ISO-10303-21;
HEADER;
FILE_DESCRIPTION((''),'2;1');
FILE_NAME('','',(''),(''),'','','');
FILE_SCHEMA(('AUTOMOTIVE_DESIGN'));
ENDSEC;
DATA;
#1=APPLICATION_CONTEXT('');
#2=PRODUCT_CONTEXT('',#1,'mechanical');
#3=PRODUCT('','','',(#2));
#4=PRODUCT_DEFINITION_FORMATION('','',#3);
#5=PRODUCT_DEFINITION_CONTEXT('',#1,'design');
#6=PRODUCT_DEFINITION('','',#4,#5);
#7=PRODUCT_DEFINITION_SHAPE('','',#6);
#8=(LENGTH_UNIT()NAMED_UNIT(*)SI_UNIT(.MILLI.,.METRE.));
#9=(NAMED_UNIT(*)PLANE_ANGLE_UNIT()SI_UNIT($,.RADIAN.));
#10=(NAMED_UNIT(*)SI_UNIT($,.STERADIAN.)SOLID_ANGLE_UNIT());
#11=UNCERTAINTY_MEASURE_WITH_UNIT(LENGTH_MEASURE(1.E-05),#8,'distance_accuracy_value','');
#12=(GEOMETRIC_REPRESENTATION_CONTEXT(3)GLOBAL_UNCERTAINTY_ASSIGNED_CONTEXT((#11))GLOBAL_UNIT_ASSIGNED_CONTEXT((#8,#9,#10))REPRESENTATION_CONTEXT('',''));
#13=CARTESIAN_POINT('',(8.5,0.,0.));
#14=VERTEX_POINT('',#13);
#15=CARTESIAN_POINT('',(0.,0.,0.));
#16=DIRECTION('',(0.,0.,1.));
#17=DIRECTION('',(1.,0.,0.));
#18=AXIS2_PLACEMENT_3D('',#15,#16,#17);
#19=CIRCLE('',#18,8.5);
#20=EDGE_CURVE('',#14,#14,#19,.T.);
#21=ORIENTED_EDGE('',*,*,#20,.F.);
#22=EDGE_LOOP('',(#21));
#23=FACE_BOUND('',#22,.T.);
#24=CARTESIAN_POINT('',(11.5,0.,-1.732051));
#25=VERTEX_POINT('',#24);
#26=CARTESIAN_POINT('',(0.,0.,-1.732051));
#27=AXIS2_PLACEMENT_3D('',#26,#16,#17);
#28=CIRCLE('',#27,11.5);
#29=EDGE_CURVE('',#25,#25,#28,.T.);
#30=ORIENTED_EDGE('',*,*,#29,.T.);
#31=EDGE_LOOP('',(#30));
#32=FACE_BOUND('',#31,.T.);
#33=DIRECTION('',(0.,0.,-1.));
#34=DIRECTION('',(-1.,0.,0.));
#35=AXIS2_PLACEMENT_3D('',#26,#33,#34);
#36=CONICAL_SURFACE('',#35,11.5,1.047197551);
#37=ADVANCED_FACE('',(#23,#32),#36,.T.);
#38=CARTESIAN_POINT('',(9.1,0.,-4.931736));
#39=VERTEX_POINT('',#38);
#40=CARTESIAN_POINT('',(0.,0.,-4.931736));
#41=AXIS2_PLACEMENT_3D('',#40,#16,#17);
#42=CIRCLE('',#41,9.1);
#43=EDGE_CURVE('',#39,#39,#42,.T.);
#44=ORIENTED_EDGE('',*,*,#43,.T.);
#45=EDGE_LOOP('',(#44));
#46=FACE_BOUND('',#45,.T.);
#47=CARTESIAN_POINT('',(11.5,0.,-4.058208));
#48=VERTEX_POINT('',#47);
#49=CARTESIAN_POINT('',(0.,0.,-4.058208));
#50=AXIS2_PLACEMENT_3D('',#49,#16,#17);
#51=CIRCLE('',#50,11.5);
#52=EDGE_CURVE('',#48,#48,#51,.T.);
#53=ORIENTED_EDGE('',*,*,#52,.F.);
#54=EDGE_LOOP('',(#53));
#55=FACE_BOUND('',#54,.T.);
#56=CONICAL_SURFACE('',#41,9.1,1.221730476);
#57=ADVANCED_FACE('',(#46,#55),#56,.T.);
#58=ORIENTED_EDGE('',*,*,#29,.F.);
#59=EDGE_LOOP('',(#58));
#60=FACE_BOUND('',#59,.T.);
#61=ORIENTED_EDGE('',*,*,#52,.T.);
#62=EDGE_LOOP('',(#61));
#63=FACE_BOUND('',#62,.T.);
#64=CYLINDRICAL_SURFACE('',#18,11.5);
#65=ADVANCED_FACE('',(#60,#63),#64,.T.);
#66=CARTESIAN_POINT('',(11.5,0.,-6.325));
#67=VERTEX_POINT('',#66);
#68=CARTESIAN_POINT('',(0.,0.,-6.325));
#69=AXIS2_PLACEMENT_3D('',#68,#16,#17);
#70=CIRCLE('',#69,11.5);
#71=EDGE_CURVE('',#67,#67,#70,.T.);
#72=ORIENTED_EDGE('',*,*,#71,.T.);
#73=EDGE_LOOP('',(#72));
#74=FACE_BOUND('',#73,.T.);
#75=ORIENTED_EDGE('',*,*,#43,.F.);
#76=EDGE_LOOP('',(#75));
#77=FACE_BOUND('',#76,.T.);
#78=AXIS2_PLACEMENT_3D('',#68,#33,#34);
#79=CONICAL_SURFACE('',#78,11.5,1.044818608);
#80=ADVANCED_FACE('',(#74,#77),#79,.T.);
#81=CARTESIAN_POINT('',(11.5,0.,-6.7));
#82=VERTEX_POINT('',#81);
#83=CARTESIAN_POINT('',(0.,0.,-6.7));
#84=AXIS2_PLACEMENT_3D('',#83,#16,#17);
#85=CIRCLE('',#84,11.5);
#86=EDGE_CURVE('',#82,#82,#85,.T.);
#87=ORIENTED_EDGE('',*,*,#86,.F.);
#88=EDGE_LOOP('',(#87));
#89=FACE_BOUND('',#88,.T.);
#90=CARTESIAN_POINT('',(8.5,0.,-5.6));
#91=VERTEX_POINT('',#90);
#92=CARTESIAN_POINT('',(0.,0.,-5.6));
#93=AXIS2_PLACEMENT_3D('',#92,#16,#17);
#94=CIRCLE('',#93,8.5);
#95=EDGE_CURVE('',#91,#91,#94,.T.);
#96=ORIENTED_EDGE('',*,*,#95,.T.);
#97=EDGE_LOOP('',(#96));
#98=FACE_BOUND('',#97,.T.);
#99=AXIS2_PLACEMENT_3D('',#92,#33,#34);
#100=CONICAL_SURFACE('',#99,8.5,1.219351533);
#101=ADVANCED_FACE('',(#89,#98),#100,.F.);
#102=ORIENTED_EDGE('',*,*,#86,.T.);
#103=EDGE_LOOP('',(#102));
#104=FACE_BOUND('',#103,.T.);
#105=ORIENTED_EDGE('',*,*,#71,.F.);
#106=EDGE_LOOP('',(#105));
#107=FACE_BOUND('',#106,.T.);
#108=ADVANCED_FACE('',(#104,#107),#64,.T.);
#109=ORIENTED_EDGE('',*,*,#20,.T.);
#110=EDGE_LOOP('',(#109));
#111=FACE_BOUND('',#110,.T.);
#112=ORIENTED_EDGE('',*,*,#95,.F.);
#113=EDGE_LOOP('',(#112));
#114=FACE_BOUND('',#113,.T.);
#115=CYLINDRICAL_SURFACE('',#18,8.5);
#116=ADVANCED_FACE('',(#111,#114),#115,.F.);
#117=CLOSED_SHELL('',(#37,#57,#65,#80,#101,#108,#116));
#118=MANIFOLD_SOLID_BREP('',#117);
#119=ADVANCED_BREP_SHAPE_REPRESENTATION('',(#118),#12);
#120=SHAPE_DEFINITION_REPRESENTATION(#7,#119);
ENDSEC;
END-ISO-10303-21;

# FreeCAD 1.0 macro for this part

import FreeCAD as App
import Part
import Sketcher
Q = App.Units.Quantity

doc = App.newDocument("Part")
body = doc.addObject("PartDesign::Body", "Body")

# Sketch on YZ plane
sketch1 = body.newObject("Sketcher::SketchObject", "Sketch")
sketch1.AttachmentSupport = (doc.getObject("YZ_Plane"), [""])
sketch1.MapMode = "FlatFace"
sketch1.addGeometry(Part.LineSegment(App.Vector(8.5, 0, 0), App.Vector(8.5, -5.6, 0)), False)
sketch1.addGeometry(Part.LineSegment(App.Vector(8.5, -5.6, 0), App.Vector(11.5, -6.7, 0)), False)
sketch1.addGeometry(Part.LineSegment(App.Vector(11.5, -6.7, 0), App.Vector(11.5, -6.33, 0)), False)
sketch1.addGeometry(Part.LineSegment(App.Vector(11.5, -6.33, 0), App.Vector(9.1, -4.93, 0)), False)
sketch1.addGeometry(Part.LineSegment(App.Vector(9.1, -4.93, 0), App.Vector(11.5, -4.06, 0)), False)
sketch1.addGeometry(Part.LineSegment(App.Vector(11.5, -4.06, 0), App.Vector(11.5, -1.73, 0)), False)
sketch1.addGeometry(Part.LineSegment(App.Vector(11.5, -1.73, 0), App.Vector(8.5, 0, 0)), False)
sketch1.addConstraint(Sketcher.Constraint("Coincident", 0, 2, 1, 1))
sketch1.addConstraint(Sketcher.Constraint("Coincident", 1, 2, 2, 1))
sketch1.addConstraint(Sketcher.Constraint("Coincident", 2, 2, 3, 1))
sketch1.addConstraint(Sketcher.Constraint("Coincident", 3, 2, 4, 1))
sketch1.addConstraint(Sketcher.Constraint("Coincident", 4, 2, 5, 1))
sketch1.addConstraint(Sketcher.Constraint("Coincident", 5, 2, 6, 1))
sketch1.addConstraint(Sketcher.Constraint("Coincident", 6, 2, 0, 1))
sketch1.addConstraint(Sketcher.Constraint("Vertical", 0))
sketch1.addConstraint(Sketcher.Constraint("Vertical", 2))
sketch1.addConstraint(Sketcher.Constraint("Vertical", 5))
sketch1.addConstraint(Sketcher.Constraint("PointOnObject", 6, 2, -1))
sketch1.addConstraint(Sketcher.Constraint("Vertical", 2, 2, 4, 2))
sketch1.addConstraint(Sketcher.Constraint("Angle", 4, Q("20 deg")))
sketch1.addConstraint(Sketcher.Constraint("Angle", 6, Q("150 deg")))
sketch1.addConstraint(Sketcher.Constraint("DistanceY", 0, 2, 0, 1, Q("5.6 mm")))
sketch1.addConstraint(Sketcher.Constraint("DistanceX", 0, 2, 1, 2, Q("3 mm")))
sketch1.addConstraint(Sketcher.Constraint("DistanceX", -1, 1, 0, 2, Q("8.5 mm")))
sketch1.addConstraint(Sketcher.Constraint("DistanceY", 1, 2, -1, 1, Q("6.7 mm")))
sketch1.addConstraint(Sketcher.Constraint("DistanceX", -1, 1, 3, 2, Q("9.1 mm")))
sketch1.addConstraint(Sketcher.Constraint("DistanceY", 2, 1, 2, 2, Q("0.375 mm")))
sketch1.addConstraint(Sketcher.Constraint("Distance", 3, Q("2.775101 mm")))
revolution = body.newObject("PartDesign::Revolution", "Revolution")
revolution.Profile = sketch1
revolution.ReferenceAxis = (sketch1, ["V_Axis"])
revolution.Angle = 360

doc.recompute()
